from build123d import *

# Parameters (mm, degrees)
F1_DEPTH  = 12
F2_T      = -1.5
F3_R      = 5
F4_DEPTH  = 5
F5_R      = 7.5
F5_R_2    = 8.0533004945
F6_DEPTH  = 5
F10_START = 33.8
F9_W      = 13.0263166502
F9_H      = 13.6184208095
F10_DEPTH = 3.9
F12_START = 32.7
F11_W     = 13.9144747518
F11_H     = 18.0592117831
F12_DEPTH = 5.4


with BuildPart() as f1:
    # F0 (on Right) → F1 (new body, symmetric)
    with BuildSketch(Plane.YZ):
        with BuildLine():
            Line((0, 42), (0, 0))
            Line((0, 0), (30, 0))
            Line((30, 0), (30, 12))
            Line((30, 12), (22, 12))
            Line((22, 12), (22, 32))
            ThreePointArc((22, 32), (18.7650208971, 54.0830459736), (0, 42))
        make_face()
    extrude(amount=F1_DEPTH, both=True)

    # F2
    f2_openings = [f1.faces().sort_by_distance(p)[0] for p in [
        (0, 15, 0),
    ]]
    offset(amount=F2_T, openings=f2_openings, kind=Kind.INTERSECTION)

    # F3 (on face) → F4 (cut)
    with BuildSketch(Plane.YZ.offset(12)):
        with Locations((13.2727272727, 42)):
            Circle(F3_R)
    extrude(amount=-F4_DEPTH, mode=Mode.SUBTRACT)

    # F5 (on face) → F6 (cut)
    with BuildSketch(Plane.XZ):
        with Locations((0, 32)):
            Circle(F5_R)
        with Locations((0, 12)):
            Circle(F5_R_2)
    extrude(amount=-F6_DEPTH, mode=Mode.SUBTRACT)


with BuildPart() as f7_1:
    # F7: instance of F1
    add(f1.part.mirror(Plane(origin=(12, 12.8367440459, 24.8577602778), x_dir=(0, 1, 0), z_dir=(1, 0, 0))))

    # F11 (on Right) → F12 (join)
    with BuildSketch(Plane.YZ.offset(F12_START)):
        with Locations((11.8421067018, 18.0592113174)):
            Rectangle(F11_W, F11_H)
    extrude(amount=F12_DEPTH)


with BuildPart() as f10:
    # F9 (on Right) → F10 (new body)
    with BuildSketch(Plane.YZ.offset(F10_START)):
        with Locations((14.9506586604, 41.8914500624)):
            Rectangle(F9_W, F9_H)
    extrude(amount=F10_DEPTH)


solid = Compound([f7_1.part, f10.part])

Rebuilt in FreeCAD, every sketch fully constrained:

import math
import FreeCAD as App
import Part
import Sketcher


def faces_at(feature, points):
    """Names of the faces that lie closest to the given points."""
    faces = feature.Shape.Faces
    near = lambda p: min(range(len(faces)), key=lambda i: faces[i].distToShape(Part.Vertex(*p))[0])
    return sorted({f"Face{near(p) + 1}" for p in points})

doc = App.newDocument("Part")
params = doc.addObject("Spreadsheet::Sheet", "Params")
for row, (alias, value) in enumerate([
    ("sketch1_width", "30 mm"),
    ("sketch1_width2", "8 mm"),
    ("sketch1_height", "42 mm"),
    ("sketch1_height2", "12 mm"),
    ("sketch1_height3", "20 mm"),
    ("pad1_length", "24 mm"),
    ("thickness_wall", "1.5 mm"),
    ("sketch2_diameter", "10 mm"),
    ("pocket1_length", "5 mm"),
    ("sketch3_diameter", "15 mm"),
    ("pocket2_length", "5 mm"),
    ("pad2_length", "5.4 mm"),
    ("pad3_length", "3.9 mm"),
], start=1):
    params.set(f"A{row}", alias)
    params.set(f"B{row}", "=" + value)
    params.setAlias(f"B{row}", alias)

body = doc.addObject("PartDesign::Body", "Body")

sketch1 = body.newObject("Sketcher::SketchObject", "Sketch")
sketch1.AttachmentSupport = (doc.getObject("YZ_Plane"), [""])
sketch1.MapMode = "FlatFace"
sketch1.addGeometry([
    Part.LineSegment(App.Vector(0, 42, 0), App.Vector(0, 0, 0)),
    Part.LineSegment(App.Vector(0, 0, 0), App.Vector(30, 0, 0)),
    Part.LineSegment(App.Vector(30, 0, 0), App.Vector(30, 12, 0)),
    Part.LineSegment(App.Vector(30, 12, 0), App.Vector(22, 12, 0)),
    Part.LineSegment(App.Vector(22, 12, 0), App.Vector(22, 32, 0)),
    Part.ArcOfCircle(Part.Circle(App.Vector(13, 42, 0), App.Vector(0, 0, 1), 13), math.radians(-49), math.radians(180)),
], False)
sketch1.addConstraint([
    Sketcher.Constraint("Coincident", 0, 2, 1, 1),
    Sketcher.Constraint("Coincident", 1, 2, 2, 1),
    Sketcher.Constraint("Coincident", 2, 2, 3, 1),
    Sketcher.Constraint("Coincident", 3, 2, 4, 1),
    Sketcher.Constraint("Coincident", 4, 2, 5, 1),
    Sketcher.Constraint("Tangent", 5, 2, 0, 1),
    Sketcher.Constraint("Vertical", 0),
    Sketcher.Constraint("Horizontal", 1),
    Sketcher.Constraint("Vertical", 2),
    Sketcher.Constraint("Horizontal", 3),
    Sketcher.Constraint("Vertical", 4),
    Sketcher.Constraint("Coincident", 0, 2, -1, 1),
    Sketcher.Constraint("DistanceX", 1, 1, 1, 2, 30.0),
    Sketcher.Constraint("DistanceX", 3, 2, 3, 1, 8.0),
    Sketcher.Constraint("DistanceY", 0, 2, 0, 1, 42.0),
    Sketcher.Constraint("DistanceY", 2, 1, 2, 2, 12.0),
    Sketcher.Constraint("DistanceY", 4, 1, 4, 2, 20.0),
])
sketch1.setExpression("Constraints[12]", "Params.sketch1_width")
sketch1.setExpression("Constraints[13]", "Params.sketch1_width2")
sketch1.setExpression("Constraints[14]", "Params.sketch1_height")
sketch1.setExpression("Constraints[15]", "Params.sketch1_height2")
sketch1.setExpression("Constraints[16]", "Params.sketch1_height3")
pad1 = body.newObject("PartDesign::Pad", "Pad")
pad1.Profile = sketch1
pad1.setExpression("Length", "Params.pad1_length")
pad1.Midplane = True
doc.recompute()

thickness = body.newObject("PartDesign::Thickness", "Thickness")
thickness.Base = (pad1, faces_at(pad1, [(0, 15, 0)]))
thickness.setExpression("Value", "Params.thickness_wall")
thickness.Reversed = True
thickness.Join = "Intersection"

sketch2 = body.newObject("Sketcher::SketchObject", "Sketch001")
sketch2.AttachmentSupport = (doc.getObject("YZ_Plane"), [""])
sketch2.MapMode = "FlatFace"
sketch2.AttachmentOffset = App.Placement(App.Vector(0, 0, 12), App.Rotation())
sketch2.addGeometry(Part.Circle(App.Vector(13, 42, 0), App.Vector(0, 0, 1), 5), False)
sketch2.addConstraint([
    Sketcher.Constraint("Diameter", 0, 10.0),
    Sketcher.Constraint("DistanceY", -1, 1, 0, 3, 42.0),
    Sketcher.Constraint("DistanceX", -1, 1, 0, 3, 13.272727),
])
sketch2.setExpression("Constraints[0]", "Params.sketch2_diameter")
pocket1 = body.newObject("PartDesign::Pocket", "Pocket")
pocket1.Profile = sketch2
pocket1.setExpression("Length", "Params.pocket1_length")

sketch3 = body.newObject("Sketcher::SketchObject", "Sketch002")
sketch3.AttachmentSupport = (doc.getObject("XZ_Plane"), [""])
sketch3.MapMode = "FlatFace"
sketch3.addGeometry([
    Part.Circle(App.Vector(0, 32, 0), App.Vector(0, 0, 1), 8),
    Part.Circle(App.Vector(0, 12, 0), App.Vector(0, 0, 1), 8),
], False)
sketch3.addConstraint([
    Sketcher.Constraint("PointOnObject", 0, 3, -2),
    Sketcher.Constraint("PointOnObject", 1, 3, -2),
    Sketcher.Constraint("Diameter", 0, 15.0),
    Sketcher.Constraint("DistanceY", -1, 1, 0, 3, 32.0),
    Sketcher.Constraint("DistanceY", -1, 1, 1, 3, 12.0),
    Sketcher.Constraint("Diameter", 1, 16.106601),
])
sketch3.setExpression("Constraints[2]", "Params.sketch3_diameter")
pocket2 = body.newObject("PartDesign::Pocket", "Pocket001")
pocket2.Profile = sketch3
pocket2.setExpression("Length", "Params.pocket2_length")
body2 = doc.addObject("PartDesign::Body", "Body001")
doc.recompute()

mirroring = doc.addObject("Part::Mirroring", "Mirroring")
mirroring.Source = body
mirroring.Base = App.Vector(12, 12.836744, 24.85776)
mirroring.Normal = App.Vector(1, 0, 0)
body2.BaseFeature = mirroring
doc.recompute()

sketch4 = body2.newObject("Sketcher::SketchObject", "Sketch003")
sketch4.AttachmentSupport = (doc.getObject("YZ_Plane001"), [""])
sketch4.MapMode = "FlatFace"
sketch4.AttachmentOffset = App.Placement(App.Vector(0, 0, 32.7), App.Rotation())
sketch4.addGeometry([
    Part.LineSegment(App.Vector(5, 27, 0), App.Vector(5, 9, 0)),
    Part.LineSegment(App.Vector(5, 9, 0), App.Vector(19, 9, 0)),
    Part.LineSegment(App.Vector(19, 9, 0), App.Vector(19, 27, 0)),
    Part.LineSegment(App.Vector(19, 27, 0), App.Vector(5, 27, 0)),
], False)
sketch4.addConstraint([
    Sketcher.Constraint("Coincident", 0, 2, 1, 1),
    Sketcher.Constraint("Coincident", 1, 2, 2, 1),
    Sketcher.Constraint("Coincident", 2, 2, 3, 1),
    Sketcher.Constraint("Coincident", 3, 2, 0, 1),
    Sketcher.Constraint("Vertical", 0),
    Sketcher.Constraint("Horizontal", 1),
    Sketcher.Constraint("Vertical", 2),
    Sketcher.Constraint("Horizontal", 3),
    Sketcher.Constraint("DistanceY", 0, 2, 0, 1, 18.059212),
    Sketcher.Constraint("DistanceX", 1, 1, 1, 2, 13.914475),
    Sketcher.Constraint("DistanceX", -1, 1, 0, 2, 4.884869),
    Sketcher.Constraint("DistanceY", -1, 1, 0, 2, 9.029605),
])
pad2 = body2.newObject("PartDesign::Pad", "Pad001")
pad2.Profile = sketch4
pad2.setExpression("Length", "Params.pad2_length")
body3 = doc.addObject("PartDesign::Body", "Body002")

sketch5 = body3.newObject("Sketcher::SketchObject", "Sketch004")
sketch5.AttachmentSupport = (doc.getObject("YZ_Plane002"), [""])
sketch5.MapMode = "FlatFace"
sketch5.AttachmentOffset = App.Placement(App.Vector(0, 0, 33.8), App.Rotation())
sketch5.addGeometry([
    Part.LineSegment(App.Vector(8, 49, 0), App.Vector(8, 35, 0)),
    Part.LineSegment(App.Vector(8, 35, 0), App.Vector(21, 35, 0)),
    Part.LineSegment(App.Vector(21, 35, 0), App.Vector(21, 49, 0)),
    Part.LineSegment(App.Vector(21, 49, 0), App.Vector(8, 49, 0)),
], False)
sketch5.addConstraint([
    Sketcher.Constraint("Coincident", 0, 2, 1, 1),
    Sketcher.Constraint("Coincident", 1, 2, 2, 1),
    Sketcher.Constraint("Coincident", 2, 2, 3, 1),
    Sketcher.Constraint("Coincident", 3, 2, 0, 1),
    Sketcher.Constraint("Vertical", 0),
    Sketcher.Constraint("Horizontal", 1),
    Sketcher.Constraint("Vertical", 2),
    Sketcher.Constraint("Horizontal", 3),
    Sketcher.Constraint("DistanceY", 0, 2, 0, 1, 13.618421),
    Sketcher.Constraint("DistanceX", -1, 1, 0, 2, 8.4375),
    Sketcher.Constraint("DistanceX", 1, 1, 1, 2, 13.026317),
    Sketcher.Constraint("DistanceY", -1, 1, 0, 2, 35.08224),
])
pad3 = body3.newObject("PartDesign::Pad", "Pad002")
pad3.Profile = sketch5
pad3.setExpression("Length", "Params.pad3_length")
body.Visibility = False
mirroring.Visibility = False

doc.recompute()
